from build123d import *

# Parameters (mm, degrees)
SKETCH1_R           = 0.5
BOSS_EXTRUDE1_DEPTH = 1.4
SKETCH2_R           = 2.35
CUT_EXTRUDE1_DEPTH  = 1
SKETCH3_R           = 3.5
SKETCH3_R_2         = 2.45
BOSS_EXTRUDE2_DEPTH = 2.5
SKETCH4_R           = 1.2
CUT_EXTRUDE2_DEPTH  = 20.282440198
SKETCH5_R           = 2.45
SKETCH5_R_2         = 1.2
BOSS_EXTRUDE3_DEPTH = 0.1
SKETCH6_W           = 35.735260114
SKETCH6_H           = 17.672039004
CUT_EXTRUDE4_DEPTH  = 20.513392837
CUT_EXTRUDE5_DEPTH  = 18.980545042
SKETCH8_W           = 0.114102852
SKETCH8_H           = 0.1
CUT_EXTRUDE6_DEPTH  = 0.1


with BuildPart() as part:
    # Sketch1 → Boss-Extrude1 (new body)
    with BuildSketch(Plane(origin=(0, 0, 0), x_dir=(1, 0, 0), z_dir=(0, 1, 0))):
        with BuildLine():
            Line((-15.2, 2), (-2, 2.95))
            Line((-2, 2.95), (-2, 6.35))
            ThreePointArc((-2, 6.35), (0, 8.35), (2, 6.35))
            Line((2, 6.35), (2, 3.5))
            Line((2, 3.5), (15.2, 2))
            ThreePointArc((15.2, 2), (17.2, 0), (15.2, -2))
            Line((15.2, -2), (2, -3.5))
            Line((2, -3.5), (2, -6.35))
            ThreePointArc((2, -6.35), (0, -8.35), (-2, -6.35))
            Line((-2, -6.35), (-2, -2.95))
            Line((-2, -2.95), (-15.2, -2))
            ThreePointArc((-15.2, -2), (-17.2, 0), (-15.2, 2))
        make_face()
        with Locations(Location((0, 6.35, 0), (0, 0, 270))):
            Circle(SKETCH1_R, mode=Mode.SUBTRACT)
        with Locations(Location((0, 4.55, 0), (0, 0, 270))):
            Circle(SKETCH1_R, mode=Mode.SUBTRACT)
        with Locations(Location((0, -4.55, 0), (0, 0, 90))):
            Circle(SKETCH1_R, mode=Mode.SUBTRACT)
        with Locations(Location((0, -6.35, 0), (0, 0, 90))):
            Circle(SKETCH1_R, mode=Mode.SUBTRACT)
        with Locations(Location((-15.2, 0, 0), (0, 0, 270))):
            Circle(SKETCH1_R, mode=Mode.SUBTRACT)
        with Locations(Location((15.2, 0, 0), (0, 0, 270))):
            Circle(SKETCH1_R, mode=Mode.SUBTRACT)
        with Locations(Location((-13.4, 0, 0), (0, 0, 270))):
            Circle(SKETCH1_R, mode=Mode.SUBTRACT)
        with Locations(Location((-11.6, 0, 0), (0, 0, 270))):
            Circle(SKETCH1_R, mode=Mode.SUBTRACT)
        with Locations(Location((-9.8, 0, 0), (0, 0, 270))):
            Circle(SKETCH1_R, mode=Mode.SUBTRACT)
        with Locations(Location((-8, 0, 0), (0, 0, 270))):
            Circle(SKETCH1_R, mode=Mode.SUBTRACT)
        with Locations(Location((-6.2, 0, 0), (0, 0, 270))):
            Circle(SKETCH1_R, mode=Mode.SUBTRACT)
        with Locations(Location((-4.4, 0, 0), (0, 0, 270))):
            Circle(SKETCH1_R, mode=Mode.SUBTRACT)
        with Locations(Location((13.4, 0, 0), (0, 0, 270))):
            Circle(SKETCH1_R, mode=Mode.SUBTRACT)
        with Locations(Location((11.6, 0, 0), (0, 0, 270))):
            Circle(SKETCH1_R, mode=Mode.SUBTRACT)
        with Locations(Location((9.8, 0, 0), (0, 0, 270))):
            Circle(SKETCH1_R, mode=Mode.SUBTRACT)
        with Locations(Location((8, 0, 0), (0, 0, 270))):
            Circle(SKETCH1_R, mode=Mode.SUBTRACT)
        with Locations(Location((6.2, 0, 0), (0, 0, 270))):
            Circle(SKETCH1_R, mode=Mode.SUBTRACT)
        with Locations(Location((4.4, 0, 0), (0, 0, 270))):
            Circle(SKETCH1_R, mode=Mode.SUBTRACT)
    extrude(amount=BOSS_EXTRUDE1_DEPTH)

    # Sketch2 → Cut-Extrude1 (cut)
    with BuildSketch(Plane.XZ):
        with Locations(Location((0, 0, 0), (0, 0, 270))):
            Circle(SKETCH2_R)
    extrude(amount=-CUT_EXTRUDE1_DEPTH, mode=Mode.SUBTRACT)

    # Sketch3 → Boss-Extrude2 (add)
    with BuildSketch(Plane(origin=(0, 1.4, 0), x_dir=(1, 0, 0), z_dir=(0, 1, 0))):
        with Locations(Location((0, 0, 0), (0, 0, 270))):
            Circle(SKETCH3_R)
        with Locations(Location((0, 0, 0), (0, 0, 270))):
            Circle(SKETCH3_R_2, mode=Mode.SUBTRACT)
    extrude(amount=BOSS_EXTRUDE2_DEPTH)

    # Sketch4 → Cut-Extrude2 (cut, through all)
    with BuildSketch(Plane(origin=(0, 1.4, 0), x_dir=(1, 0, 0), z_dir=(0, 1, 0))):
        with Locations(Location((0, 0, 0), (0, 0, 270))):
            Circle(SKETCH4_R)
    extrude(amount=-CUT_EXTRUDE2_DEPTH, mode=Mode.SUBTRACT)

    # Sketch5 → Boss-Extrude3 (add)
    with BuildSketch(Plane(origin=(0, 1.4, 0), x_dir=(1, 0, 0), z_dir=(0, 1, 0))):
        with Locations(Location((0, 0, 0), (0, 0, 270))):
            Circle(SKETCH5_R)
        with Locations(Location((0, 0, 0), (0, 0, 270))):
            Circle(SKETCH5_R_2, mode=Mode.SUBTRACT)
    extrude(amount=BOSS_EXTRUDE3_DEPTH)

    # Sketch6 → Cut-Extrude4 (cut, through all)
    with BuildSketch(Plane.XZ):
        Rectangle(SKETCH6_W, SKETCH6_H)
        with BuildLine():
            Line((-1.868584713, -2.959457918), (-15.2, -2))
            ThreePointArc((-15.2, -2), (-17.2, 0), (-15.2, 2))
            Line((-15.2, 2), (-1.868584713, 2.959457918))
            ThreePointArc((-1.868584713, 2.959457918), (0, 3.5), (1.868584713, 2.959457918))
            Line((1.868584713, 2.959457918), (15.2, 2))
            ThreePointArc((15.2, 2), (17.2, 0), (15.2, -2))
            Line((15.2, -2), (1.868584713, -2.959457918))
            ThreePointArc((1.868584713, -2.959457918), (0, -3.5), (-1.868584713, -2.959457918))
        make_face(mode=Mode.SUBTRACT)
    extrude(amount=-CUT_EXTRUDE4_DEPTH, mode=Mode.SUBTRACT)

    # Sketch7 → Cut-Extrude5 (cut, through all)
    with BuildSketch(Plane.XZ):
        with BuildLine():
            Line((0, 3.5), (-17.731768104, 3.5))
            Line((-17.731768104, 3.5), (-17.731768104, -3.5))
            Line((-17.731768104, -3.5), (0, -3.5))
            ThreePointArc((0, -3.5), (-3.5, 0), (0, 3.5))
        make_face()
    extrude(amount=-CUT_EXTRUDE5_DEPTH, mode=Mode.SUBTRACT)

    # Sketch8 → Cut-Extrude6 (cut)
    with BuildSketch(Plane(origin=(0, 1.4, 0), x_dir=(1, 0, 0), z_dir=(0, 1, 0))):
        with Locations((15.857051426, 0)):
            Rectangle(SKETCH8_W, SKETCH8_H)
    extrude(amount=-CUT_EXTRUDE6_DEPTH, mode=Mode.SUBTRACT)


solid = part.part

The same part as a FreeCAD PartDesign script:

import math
import FreeCAD as App
import Part
import Sketcher

V = App.Vector

doc = App.newDocument("Part")
body = doc.addObject("PartDesign::Body", "Body")

sketch1 = body.newObject("Sketcher::SketchObject", "Sketch")
sketch1.AttachmentSupport = (doc.getObject("XZ_Plane"), [""])
sketch1.MapMode = "FlatFace"
sketch1.addGeometry([
    Part.LineSegment(V(-2, -3, 0), V(-15.2, -2, 0)),
    Part.ArcOfCircle(Part.Circle(V(-15.2, 0, 0), V(0, 0, 1), 2), math.radians(90), math.radians(270)),
    Part.LineSegment(V(-15.2, 2, 0), V(-2, 3, 0)),
    Part.LineSegment(V(-2, 3, 0), V(-2, 6.3, 0)),
    Part.ArcOfCircle(Part.Circle(V(0, 6.3, 0), V(0, 0, 1), 2), math.radians(0), math.radians(180)),
    Part.LineSegment(V(2, 6.3, 0), V(2, 3.5, 0)),
    Part.LineSegment(V(2, 3.5, 0), V(15.2, 2, 0)),
    Part.ArcOfCircle(Part.Circle(V(15.2, 0, 0), V(0, 0, 1), 2), math.radians(-90), math.radians(90)),
    Part.LineSegment(V(15.2, -2, 0), V(2, -3.5, 0)),
    Part.LineSegment(V(2, -3.5, 0), V(2, -6.3, 0)),
    Part.ArcOfCircle(Part.Circle(V(0, -6.3, 0), V(0, 0, 1), 2), math.radians(180), math.radians(360)),
    Part.LineSegment(V(-2, -6.3, 0), V(-2, -3, 0)),
    Part.Circle(V(0, 6.3, 0), V(0, 0, 1), 0.5),
    Part.Circle(V(0, 4.5, 0), V(0, 0, 1), 0.5),
    Part.Circle(V(15.2, 0, 0), V(0, 0, 1), 0.5),
    Part.Circle(V(13.4, 0, 0), V(0, 0, 1), 0.5),
    Part.Circle(V(11.6, 0, 0), V(0, 0, 1), 0.5),
    Part.Circle(V(9.8, 0, 0), V(0, 0, 1), 0.5),
    Part.Circle(V(8, 0, 0), V(0, 0, 1), 0.5),
    Part.Circle(V(6.2, 0, 0), V(0, 0, 1), 0.5),
    Part.Circle(V(4.4, 0, 0), V(0, 0, 1), 0.5),
    Part.Circle(V(-4.4, 0, 0), V(0, 0, 1), 0.5),
    Part.Circle(V(-6.2, 0, 0), V(0, 0, 1), 0.5),
    Part.Circle(V(-8, 0, 0), V(0, 0, 1), 0.5),
    Part.Circle(V(-9.8, 0, 0), V(0, 0, 1), 0.5),
    Part.Circle(V(-11.6, 0, 0), V(0, 0, 1), 0.5),
    Part.Circle(V(-13.4, 0, 0), V(0, 0, 1), 0.5),
    Part.Circle(V(-15.2, 0, 0), V(0, 0, 1), 0.5),
    Part.Circle(V(0, -4.5, 0), V(0, 0, 1), 0.5),
    Part.Circle(V(0, -6.3, 0), V(0, 0, 1), 0.5),
], False)
sketch1.addConstraint([
    Sketcher.Constraint("Coincident", 0, 2, 1, 2),
    Sketcher.Constraint("Coincident", 1, 1, 2, 1),
    Sketcher.Constraint("Coincident", 2, 2, 3, 1),
    Sketcher.Constraint("Tangent", 3, 2, 4, 2),
    Sketcher.Constraint("Tangent", 4, 1, 5, 1),
    Sketcher.Constraint("Coincident", 5, 2, 6, 1),
    Sketcher.Constraint("Coincident", 6, 2, 7, 2),
    Sketcher.Constraint("Coincident", 7, 1, 8, 1),
    Sketcher.Constraint("Coincident", 8, 2, 9, 1),
    Sketcher.Constraint("Tangent", 9, 2, 10, 2),
    Sketcher.Constraint("Tangent", 10, 1, 11, 1),
    Sketcher.Constraint("Coincident", 11, 2, 0, 1),
    Sketcher.Constraint("Vertical", 3),
    Sketcher.Constraint("Vertical", 5),
    Sketcher.Constraint("Vertical", 9),
    Sketcher.Constraint("Vertical", 11),
    Sketcher.Constraint("Coincident", 12, 3, 4, 3),
    Sketcher.Constraint("Coincident", 14, 3, 7, 3),
    Sketcher.Constraint("Coincident", 27, 3, 1, 3),
    Sketcher.Constraint("Coincident", 29, 3, 10, 3),
    Sketcher.Constraint("Equal", 1, 4),
    Sketcher.Constraint("Equal", 4, 7),
    Sketcher.Constraint("Equal", 7, 10),
    Sketcher.Constraint("Equal", 12, 13),
    Sketcher.Constraint("Equal", 13, 14),
    Sketcher.Constraint("Equal", 14, 15),
    Sketcher.Constraint("Equal", 15, 16),
    Sketcher.Constraint("Equal", 16, 17),
    Sketcher.Constraint("Equal", 17, 18),
    Sketcher.Constraint("Equal", 18, 19),
    Sketcher.Constraint("Equal", 19, 20),
    Sketcher.Constraint("Equal", 20, 21),
    Sketcher.Constraint("Equal", 21, 22),
    Sketcher.Constraint("Equal", 22, 23),
    Sketcher.Constraint("Equal", 23, 24),
    Sketcher.Constraint("Equal", 24, 25),
    Sketcher.Constraint("Equal", 25, 26),
    Sketcher.Constraint("Equal", 26, 27),
    Sketcher.Constraint("Equal", 27, 28),
    Sketcher.Constraint("Equal", 28, 29),
    Sketcher.Constraint("Symmetric", 1, 3, 7, 3, -1, 1),
    Sketcher.Constraint("Symmetric", 4, 3, 10, 3, -1, 1),
    Sketcher.Constraint("Symmetric", 20, 3, 21, 3, -1, 1),
    Sketcher.Constraint("Symmetric", 19, 3, 22, 3, -1, 1),
    Sketcher.Constraint("Symmetric", 18, 3, 23, 3, -1, 1),
    Sketcher.Constraint("Symmetric", 17, 3, 24, 3, -1, 1),
    Sketcher.Constraint("Symmetric", 16, 3, 25, 3, -1, 1),
    Sketcher.Constraint("Symmetric", 15, 3, 26, 3, -1, 1),
    Sketcher.Constraint("Symmetric", 13, 3, 28, 3, -1, 1),
    Sketcher.Constraint("Symmetric", 1, 1, 6, 2, -2),
    Sketcher.Constraint("Symmetric", 5, 2, 8, 2, -1),
    Sketcher.Constraint("PointOnObject", 13, 3, -2),
    Sketcher.Constraint("PointOnObject", 15, 3, -1),
    Sketcher.Constraint("PointOnObject", 16, 3, -1),
    Sketcher.Constraint("PointOnObject", 17, 3, -1),
    Sketcher.Constraint("PointOnObject", 18, 3, -1),
    Sketcher.Constraint("PointOnObject", 19, 3, -1),
    Sketcher.Constraint("PointOnObject", 20, 3, -1),
    Sketcher.Constraint("Vertical", 27, 3, 0, 2),
    Sketcher.Constraint("Vertical", 0, 2, 1, 1),
    Sketcher.Constraint("Vertical", 6, 2, 7, 1),
    Sketcher.Constraint("Equal", 3, 11),
    Sketcher.Constraint("Diameter", 12, 1.0),
    Sketcher.Constraint("Radius", 1, 2.0),
    Sketcher.Constraint("DistanceY", 3, 1, 3, 2, 3.4),
    Sketcher.Constraint("DistanceX", -1, 1, 18, 3, 8.0),
    Sketcher.Constraint("DistanceY", 5, 2, 5, 1, 2.85),
    Sketcher.Constraint("DistanceX", 1, 3, -1, 1, 15.2),
    Sketcher.Constraint("DistanceX", -1, 1, 15, 3, 13.4),
    Sketcher.Constraint("DistanceX", -1, 1, 16, 3, 11.6),
    Sketcher.Constraint("DistanceX", -1, 1, 17, 3, 9.8),
    Sketcher.Constraint("DistanceX", -1, 1, 19, 3, 6.2),
    Sketcher.Constraint("DistanceX", -1, 1, 20, 3, 4.4),
    Sketcher.Constraint("DistanceY", -1, 1, 5, 2, 3.5),
    Sketcher.Constraint("DistanceY", 13, 3, 4, 3, 1.8),
])
pad1 = body.newObject("PartDesign::Pad", "Pad")
pad1.Profile = sketch1
pad1.Length = 1.4
pad1.Reversed = True

sketch2 = body.newObject("Sketcher::SketchObject", "Sketch001")
sketch2.AttachmentSupport = (doc.getObject("XZ_Plane"), [""])
sketch2.MapMode = "FlatFace"
sketch2.addGeometry(Part.Circle(V(0, 0, 0), V(0, 0, 1), 2.4), False)
sketch2.addConstraint([
    Sketcher.Constraint("Coincident", 0, 3, -1, 1),
    Sketcher.Constraint("Diameter", 0, 4.7),
])
pocket1 = body.newObject("PartDesign::Pocket", "Pocket")
pocket1.Profile = sketch2
pocket1.Length = 1

sketch3 = body.newObject("Sketcher::SketchObject", "Sketch002")
sketch3.AttachmentSupport = (doc.getObject("XZ_Plane"), [""])
sketch3.MapMode = "FlatFace"
sketch3.AttachmentOffset = App.Placement(V(0, 0, -1.4), App.Rotation())
sketch3.addGeometry([
    Part.Circle(V(0, 0, 0), V(0, 0, 1), 3.5),
    Part.Circle(V(0, 0, 0), V(0, 0, 1), 2.5),
], False)
sketch3.addConstraint([
    Sketcher.Constraint("Coincident", 0, 3, -1, 1),
    Sketcher.Constraint("Coincident", 1, 3, -1, 1),
    Sketcher.Constraint("Diameter", 0, 7.0),
    Sketcher.Constraint("Diameter", 1, 4.9),
])
pad2 = body.newObject("PartDesign::Pad", "Pad001")
pad2.Profile = sketch3
pad2.Length = 2.5
pad2.Reversed = True

sketch4 = body.newObject("Sketcher::SketchObject", "Sketch003")
sketch4.AttachmentSupport = (doc.getObject("XZ_Plane"), [""])
sketch4.MapMode = "FlatFace"
sketch4.AttachmentOffset = App.Placement(V(0, 0, -1.4), App.Rotation())
sketch4.addGeometry(Part.Circle(V(0, 0, 0), V(0, 0, 1), 1.2), False)
sketch4.addConstraint([
    Sketcher.Constraint("Coincident", 0, 3, -1, 1),
    Sketcher.Constraint("Diameter", 0, 2.4),
])
pocket2 = body.newObject("PartDesign::Pocket", "Pocket001")
pocket2.Profile = sketch4
pocket2.Type = "ThroughAll"
pocket2.Reversed = True

sketch5 = body.newObject("Sketcher::SketchObject", "Sketch004")
sketch5.AttachmentSupport = (doc.getObject("XZ_Plane"), [""])
sketch5.MapMode = "FlatFace"
sketch5.AttachmentOffset = App.Placement(V(0, 0, -1.4), App.Rotation())
sketch5.addGeometry([
    Part.Circle(V(0, 0, 0), V(0, 0, 1), 2.5),
    Part.Circle(V(0, 0, 0), V(0, 0, 1), 1.2),
], False)
sketch5.addConstraint([
    Sketcher.Constraint("Coincident", 0, 3, -1, 1),
    Sketcher.Constraint("Coincident", 1, 3, -1, 1),
    Sketcher.Constraint("Diameter", 0, 4.9),
    Sketcher.Constraint("Diameter", 1, 2.4),
])
pad3 = body.newObject("PartDesign::Pad", "Pad002")
pad3.Profile = sketch5
pad3.Length = 0.1
pad3.Reversed = True

sketch6 = body.newObject("Sketcher::SketchObject", "Sketch005")
sketch6.AttachmentSupport = (doc.getObject("XZ_Plane"), [""])
sketch6.MapMode = "FlatFace"
sketch6.addGeometry([
    Part.LineSegment(V(-17.9, 8.8, 0), V(-17.9, -8.8, 0)),
    Part.LineSegment(V(-17.9, -8.8, 0), V(17.9, -8.8, 0)),
    Part.LineSegment(V(17.9, -8.8, 0), V(17.9, 8.8, 0)),
    Part.LineSegment(V(17.9, 8.8, 0), V(-17.9, 8.8, 0)),
    Part.ArcOfCircle(Part.Circle(V(0, 0, 0), V(0, 0, 1), 3.5), math.radians(-122), math.radians(-58)),
    Part.LineSegment(V(-1.9, -3, 0), V(-15.2, -2, 0)),
    Part.ArcOfCircle(Part.Circle(V(-15.2, 0, 0), V(0, 0, 1), 2), math.radians(90), math.radians(270)),
    Part.LineSegment(V(-15.2, 2, 0), V(-1.9, 3, 0)),
    Part.ArcOfCircle(Part.Circle(V(0, 0, 0), V(0, 0, 1), 3.5), math.radians(58), math.radians(122)),
    Part.LineSegment(V(1.9, 3, 0), V(15.2, 2, 0)),
    Part.ArcOfCircle(Part.Circle(V(15.2, 0, 0), V(0, 0, 1), 2), math.radians(-90), math.radians(90)),
    Part.LineSegment(V(15.2, -2, 0), V(1.9, -3, 0)),
], False)
sketch6.addConstraint([
    Sketcher.Constraint("Coincident", 0, 2, 1, 1),
    Sketcher.Constraint("Coincident", 1, 2, 2, 1),
    Sketcher.Constraint("Coincident", 2, 2, 3, 1),
    Sketcher.Constraint("Coincident", 3, 2, 0, 1),
    Sketcher.Constraint("Coincident", 4, 1, 5, 1),
    Sketcher.Constraint("Coincident", 5, 2, 6, 2),
    Sketcher.Constraint("Coincident", 6, 1, 7, 1),
    Sketcher.Constraint("Coincident", 7, 2, 8, 2),
    Sketcher.Constraint("Coincident", 8, 1, 9, 1),
    Sketcher.Constraint("Coincident", 9, 2, 10, 2),
    Sketcher.Constraint("Coincident", 10, 1, 11, 1),
    Sketcher.Constraint("Coincident", 11, 2, 4, 2),
    Sketcher.Constraint("Vertical", 0),
    Sketcher.Constraint("Horizontal", 1),
    Sketcher.Constraint("Vertical", 2),
    Sketcher.Constraint("Horizontal", 3),
    Sketcher.Constraint("Coincident", 4, 3, -1, 1),
    Sketcher.Constraint("Coincident", 8, 3, -1, 1),
    Sketcher.Constraint("Equal", 4, 8),
    Sketcher.Constraint("Equal", 6, 10),
    Sketcher.Constraint("Symmetric", 6, 3, 10, 3, -1, 1),
    Sketcher.Constraint("Symmetric", 0, 2, 2, 2, -1, 1),
    Sketcher.Constraint("Symmetric", 6, 1, 9, 2, -2),
    Sketcher.Constraint("Parallel", 5, 9),
    Sketcher.Constraint("Parallel", 7, 11),
    Sketcher.Constraint("Horizontal", 7, 2, 8, 1),
    Sketcher.Constraint("Horizontal", 4, 1, 11, 2),
    Sketcher.Constraint("Vertical", 6, 3, 5, 2),
    Sketcher.Constraint("Vertical", 5, 2, 6, 1),
    Sketcher.Constraint("Radius", 6, 2.0),
    Sketcher.Constraint("Radius", 4, 3.5),
    Sketcher.Constraint("DistanceX", 6, 3, -1, 1, 15.2),
    Sketcher.Constraint("DistanceX", 1, 1, 1, 2, 35.73526),
    Sketcher.Constraint("DistanceY", 0, 2, 0, 1, 17.672039),
    Sketcher.Constraint("DistanceY", 0, 2, 4, 1, 5.876562),
])
pocket3 = body.newObject("PartDesign::Pocket", "Pocket002")
pocket3.Profile = sketch6
pocket3.Type = "ThroughAll"

sketch7 = body.newObject("Sketcher::SketchObject", "Sketch006")
sketch7.AttachmentSupport = (doc.getObject("XZ_Plane"), [""])
sketch7.MapMode = "FlatFace"
sketch7.addGeometry([
    Part.LineSegment(V(0, 3.5, 0), V(-17.7, 3.5, 0)),
    Part.LineSegment(V(-17.7, 3.5, 0), V(-17.7, -3.5, 0)),
    Part.LineSegment(V(-17.7, -3.5, 0), V(0, -3.5, 0)),
    Part.ArcOfCircle(Part.Circle(V(0, 0, 0), V(0, 0, 1), 3.5), math.radians(90), math.radians(270)),
], False)
sketch7.addConstraint([
    Sketcher.Constraint("Coincident", 0, 2, 1, 1),
    Sketcher.Constraint("Coincident", 1, 2, 2, 1),
    Sketcher.Constraint("Tangent", 2, 2, 3, 2),
    Sketcher.Constraint("Tangent", 3, 1, 0, 1),
    Sketcher.Constraint("Horizontal", 0),
    Sketcher.Constraint("Vertical", 1),
    Sketcher.Constraint("Horizontal", 2),
    Sketcher.Constraint("Coincident", 3, 3, -1, 1),
    Sketcher.Constraint("Radius", 3, 3.5),
    Sketcher.Constraint("DistanceX", 0, 2, 0, 1, 17.731768),
])
pocket4 = body.newObject("PartDesign::Pocket", "Pocket003")
pocket4.Profile = sketch7
pocket4.Type = "ThroughAll"

sketch8 = body.newObject("Sketcher::SketchObject", "Sketch007")
sketch8.AttachmentSupport = (doc.getObject("XZ_Plane"), [""])
sketch8.MapMode = "FlatFace"
sketch8.AttachmentOffset = App.Placement(V(0, 0, -1.4), App.Rotation())
sketch8.addGeometry([
    Part.LineSegment(V(15.8, -0.05, 0), V(15.8, 0.05, 0)),
    Part.LineSegment(V(15.8, 0.05, 0), V(15.91, 0.05, 0)),
    Part.LineSegment(V(15.91, 0.05, 0), V(15.91, -0.05, 0)),
    Part.LineSegment(V(15.91, -0.05, 0), V(15.8, -0.05, 0)),
], False)
sketch8.addConstraint([
    Sketcher.Constraint("Coincident", 0, 2, 1, 1),
    Sketcher.Constraint("Coincident", 1, 2, 2, 1),
    Sketcher.Constraint("Coincident", 2, 2, 3, 1),
    Sketcher.Constraint("Coincident", 3, 2, 0, 1),
    Sketcher.Constraint("Vertical", 0),
    Sketcher.Constraint("Horizontal", 1),
    Sketcher.Constraint("Vertical", 2),
    Sketcher.Constraint("Horizontal", 3),
    Sketcher.Constraint("DistanceY", 0, 1, 0, 2, 0.1),
    Sketcher.Constraint("DistanceX", -1, 1, 0, 2, 15.8),
    Sketcher.Constraint("DistanceY", -1, 1, 0, 2, 0.05),
    Sketcher.Constraint("DistanceX", 1, 1, 1, 2, 0.114103),
])
pocket5 = body.newObject("PartDesign::Pocket", "Pocket004")
pocket5.Profile = sketch8
pocket5.Length = 0.1
pocket5.Reversed = True

doc.recompute()
